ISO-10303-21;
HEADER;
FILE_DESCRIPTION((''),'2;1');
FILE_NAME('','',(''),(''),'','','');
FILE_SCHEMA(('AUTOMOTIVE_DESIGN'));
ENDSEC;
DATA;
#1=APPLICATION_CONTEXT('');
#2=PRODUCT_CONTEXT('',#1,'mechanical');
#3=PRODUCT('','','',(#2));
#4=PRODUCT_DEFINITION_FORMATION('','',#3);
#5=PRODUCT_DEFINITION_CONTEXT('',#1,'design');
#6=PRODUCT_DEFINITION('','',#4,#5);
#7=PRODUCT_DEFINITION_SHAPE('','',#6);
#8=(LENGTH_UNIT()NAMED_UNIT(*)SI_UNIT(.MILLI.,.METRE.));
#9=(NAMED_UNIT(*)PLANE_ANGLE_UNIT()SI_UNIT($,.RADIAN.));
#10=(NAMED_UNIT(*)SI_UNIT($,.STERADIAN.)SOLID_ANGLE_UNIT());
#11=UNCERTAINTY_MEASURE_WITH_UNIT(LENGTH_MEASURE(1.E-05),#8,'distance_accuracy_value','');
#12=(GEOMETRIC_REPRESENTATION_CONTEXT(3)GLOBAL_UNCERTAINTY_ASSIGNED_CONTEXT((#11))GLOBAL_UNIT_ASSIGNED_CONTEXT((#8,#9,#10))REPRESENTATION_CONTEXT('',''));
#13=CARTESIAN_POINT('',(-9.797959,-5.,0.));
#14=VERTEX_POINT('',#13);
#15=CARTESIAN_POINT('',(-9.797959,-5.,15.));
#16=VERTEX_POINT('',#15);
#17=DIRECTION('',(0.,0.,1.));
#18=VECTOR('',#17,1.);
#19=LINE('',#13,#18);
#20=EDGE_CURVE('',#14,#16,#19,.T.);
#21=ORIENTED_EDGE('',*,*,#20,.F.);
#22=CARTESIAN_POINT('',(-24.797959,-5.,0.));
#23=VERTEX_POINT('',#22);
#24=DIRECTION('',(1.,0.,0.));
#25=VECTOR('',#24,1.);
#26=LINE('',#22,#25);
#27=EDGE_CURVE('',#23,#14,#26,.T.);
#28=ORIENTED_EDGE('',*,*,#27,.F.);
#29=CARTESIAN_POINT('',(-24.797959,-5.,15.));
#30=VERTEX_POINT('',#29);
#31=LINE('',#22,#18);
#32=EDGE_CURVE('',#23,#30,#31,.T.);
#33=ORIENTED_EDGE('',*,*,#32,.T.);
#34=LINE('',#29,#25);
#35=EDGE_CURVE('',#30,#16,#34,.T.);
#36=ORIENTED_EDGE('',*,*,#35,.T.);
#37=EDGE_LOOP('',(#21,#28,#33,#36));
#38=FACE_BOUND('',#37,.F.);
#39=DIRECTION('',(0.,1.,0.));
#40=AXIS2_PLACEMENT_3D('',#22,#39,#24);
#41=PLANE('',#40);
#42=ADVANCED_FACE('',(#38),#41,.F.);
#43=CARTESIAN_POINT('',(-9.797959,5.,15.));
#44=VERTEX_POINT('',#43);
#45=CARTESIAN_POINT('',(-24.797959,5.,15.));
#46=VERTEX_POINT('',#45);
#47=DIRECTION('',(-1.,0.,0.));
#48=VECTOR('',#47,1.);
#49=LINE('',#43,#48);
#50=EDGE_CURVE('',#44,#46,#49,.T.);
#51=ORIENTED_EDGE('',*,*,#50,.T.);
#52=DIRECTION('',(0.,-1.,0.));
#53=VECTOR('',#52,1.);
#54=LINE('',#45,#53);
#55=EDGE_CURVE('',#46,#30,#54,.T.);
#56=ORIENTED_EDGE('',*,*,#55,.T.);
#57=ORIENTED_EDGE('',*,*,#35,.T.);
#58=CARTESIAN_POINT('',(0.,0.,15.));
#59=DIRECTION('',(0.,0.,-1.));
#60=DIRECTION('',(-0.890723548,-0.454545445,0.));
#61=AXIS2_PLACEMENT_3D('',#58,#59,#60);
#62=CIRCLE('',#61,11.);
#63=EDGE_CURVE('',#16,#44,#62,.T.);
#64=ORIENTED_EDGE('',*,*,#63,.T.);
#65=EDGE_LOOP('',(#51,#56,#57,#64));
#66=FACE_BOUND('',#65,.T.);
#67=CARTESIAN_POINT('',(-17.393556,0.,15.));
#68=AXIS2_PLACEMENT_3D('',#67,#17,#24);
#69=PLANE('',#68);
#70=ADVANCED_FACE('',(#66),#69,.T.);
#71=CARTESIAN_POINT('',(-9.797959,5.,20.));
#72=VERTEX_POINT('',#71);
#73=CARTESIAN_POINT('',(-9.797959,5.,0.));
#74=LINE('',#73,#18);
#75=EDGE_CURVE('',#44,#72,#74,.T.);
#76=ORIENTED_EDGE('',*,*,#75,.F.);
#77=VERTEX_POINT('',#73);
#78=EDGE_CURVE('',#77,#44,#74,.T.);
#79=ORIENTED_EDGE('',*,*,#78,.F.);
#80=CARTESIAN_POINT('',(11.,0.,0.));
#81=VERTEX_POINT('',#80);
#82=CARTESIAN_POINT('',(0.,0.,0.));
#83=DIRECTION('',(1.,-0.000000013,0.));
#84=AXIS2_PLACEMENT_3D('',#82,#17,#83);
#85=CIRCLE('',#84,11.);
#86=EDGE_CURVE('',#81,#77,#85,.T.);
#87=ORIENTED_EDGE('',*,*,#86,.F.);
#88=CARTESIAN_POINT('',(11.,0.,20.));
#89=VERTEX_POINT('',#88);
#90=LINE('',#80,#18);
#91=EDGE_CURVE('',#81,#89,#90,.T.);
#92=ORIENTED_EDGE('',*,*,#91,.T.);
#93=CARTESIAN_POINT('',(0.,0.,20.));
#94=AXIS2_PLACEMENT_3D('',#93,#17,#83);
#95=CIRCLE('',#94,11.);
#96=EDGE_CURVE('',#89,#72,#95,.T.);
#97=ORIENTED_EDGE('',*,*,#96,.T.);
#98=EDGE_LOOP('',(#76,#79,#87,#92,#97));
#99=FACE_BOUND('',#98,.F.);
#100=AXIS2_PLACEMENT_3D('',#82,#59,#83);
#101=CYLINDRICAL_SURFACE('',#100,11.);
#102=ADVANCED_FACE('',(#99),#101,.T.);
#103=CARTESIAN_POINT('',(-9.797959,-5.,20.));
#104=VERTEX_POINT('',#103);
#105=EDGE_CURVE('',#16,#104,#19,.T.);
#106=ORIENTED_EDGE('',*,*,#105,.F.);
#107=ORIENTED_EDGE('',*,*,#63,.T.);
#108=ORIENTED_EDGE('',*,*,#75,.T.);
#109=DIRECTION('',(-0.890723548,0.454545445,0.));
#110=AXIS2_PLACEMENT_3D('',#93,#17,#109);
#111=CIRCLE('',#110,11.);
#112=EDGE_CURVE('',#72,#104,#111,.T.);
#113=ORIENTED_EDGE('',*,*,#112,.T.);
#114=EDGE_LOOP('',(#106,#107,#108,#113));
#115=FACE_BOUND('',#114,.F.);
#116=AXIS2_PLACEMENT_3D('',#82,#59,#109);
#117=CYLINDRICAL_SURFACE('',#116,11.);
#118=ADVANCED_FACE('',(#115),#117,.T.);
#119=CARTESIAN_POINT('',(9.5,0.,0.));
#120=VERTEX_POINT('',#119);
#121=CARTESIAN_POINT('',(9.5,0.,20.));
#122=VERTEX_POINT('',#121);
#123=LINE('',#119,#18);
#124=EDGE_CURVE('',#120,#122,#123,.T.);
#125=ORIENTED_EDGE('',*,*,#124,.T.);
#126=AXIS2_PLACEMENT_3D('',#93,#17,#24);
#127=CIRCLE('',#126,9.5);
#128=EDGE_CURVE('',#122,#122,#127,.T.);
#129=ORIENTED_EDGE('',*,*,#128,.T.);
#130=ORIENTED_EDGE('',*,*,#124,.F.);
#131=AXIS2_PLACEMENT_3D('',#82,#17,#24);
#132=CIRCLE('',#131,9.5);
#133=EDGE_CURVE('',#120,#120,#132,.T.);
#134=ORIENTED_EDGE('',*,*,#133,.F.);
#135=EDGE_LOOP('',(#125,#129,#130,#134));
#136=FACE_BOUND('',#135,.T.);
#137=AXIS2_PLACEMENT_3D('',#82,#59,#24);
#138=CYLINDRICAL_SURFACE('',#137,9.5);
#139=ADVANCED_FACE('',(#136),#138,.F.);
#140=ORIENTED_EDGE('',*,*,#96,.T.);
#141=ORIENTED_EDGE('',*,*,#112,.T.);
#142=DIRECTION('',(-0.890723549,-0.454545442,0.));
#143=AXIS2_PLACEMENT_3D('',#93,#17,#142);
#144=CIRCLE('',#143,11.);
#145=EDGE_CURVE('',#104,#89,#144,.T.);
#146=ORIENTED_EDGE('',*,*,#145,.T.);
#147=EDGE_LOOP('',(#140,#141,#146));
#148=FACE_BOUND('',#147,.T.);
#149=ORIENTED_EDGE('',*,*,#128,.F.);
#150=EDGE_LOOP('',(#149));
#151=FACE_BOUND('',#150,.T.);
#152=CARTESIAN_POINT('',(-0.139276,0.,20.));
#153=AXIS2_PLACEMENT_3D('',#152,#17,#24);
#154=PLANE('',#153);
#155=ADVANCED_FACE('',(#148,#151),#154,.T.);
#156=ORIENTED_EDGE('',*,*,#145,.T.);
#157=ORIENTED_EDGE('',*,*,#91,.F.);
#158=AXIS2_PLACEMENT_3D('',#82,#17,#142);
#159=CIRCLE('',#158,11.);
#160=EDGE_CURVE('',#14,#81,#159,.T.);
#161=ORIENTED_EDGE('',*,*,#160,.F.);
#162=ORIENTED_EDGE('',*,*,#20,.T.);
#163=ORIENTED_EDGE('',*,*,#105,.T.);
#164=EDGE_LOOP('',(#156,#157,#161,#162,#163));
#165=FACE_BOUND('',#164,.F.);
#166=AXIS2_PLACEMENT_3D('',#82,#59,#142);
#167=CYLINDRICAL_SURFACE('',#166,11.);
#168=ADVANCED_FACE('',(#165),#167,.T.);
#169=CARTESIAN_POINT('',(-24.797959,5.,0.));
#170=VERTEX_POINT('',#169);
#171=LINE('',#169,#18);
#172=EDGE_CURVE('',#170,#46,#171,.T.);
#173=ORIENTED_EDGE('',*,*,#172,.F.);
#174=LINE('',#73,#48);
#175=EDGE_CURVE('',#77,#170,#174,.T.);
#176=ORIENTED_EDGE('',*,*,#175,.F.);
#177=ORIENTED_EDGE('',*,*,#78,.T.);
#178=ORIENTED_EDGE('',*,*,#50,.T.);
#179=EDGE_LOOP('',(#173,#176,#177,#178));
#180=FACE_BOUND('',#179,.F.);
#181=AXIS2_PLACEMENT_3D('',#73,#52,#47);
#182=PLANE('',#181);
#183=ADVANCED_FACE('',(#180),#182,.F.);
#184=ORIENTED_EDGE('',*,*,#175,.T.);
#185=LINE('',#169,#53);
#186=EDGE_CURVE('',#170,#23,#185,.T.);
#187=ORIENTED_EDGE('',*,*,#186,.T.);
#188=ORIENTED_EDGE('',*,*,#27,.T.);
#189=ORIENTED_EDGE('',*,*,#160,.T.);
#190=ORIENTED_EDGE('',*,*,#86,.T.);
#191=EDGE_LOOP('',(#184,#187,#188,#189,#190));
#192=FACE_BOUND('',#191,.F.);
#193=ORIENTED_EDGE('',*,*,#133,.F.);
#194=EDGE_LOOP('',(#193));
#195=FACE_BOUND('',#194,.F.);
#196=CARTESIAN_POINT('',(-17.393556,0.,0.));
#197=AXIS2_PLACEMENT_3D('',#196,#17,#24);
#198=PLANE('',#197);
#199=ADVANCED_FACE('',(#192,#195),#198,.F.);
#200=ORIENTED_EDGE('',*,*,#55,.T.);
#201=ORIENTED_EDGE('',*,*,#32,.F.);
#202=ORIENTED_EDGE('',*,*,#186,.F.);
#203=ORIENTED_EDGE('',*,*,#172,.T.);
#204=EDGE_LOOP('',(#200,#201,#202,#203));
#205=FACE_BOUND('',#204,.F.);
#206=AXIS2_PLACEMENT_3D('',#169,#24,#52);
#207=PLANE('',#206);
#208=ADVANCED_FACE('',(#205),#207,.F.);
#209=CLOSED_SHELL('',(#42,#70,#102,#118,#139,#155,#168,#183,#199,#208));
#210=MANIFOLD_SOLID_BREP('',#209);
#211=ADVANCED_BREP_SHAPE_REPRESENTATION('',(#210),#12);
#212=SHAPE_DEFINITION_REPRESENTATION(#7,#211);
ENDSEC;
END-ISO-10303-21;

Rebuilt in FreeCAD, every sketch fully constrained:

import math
import FreeCAD as App
import Part
import Sketcher
Q = App.Units.Quantity

doc = App.newDocument("Part")
body = doc.addObject("PartDesign::Body", "Body")

sketch1 = body.newObject("Sketcher::SketchObject", "Sketch")
sketch1.AttachmentSupport = (doc.getObject("XY_Plane"), [""])
sketch1.MapMode = "FlatFace"
sketch1.addGeometry(Part.ArcOfCircle(Part.Circle(App.Vector(0, 0, 0), App.Vector(0, 0, 1), 11), math.radians(0), math.radians(153)), False)
sketch1.addGeometry(Part.ArcOfCircle(Part.Circle(App.Vector(0, 0, 0), App.Vector(0, 0, 1), 11), math.radians(153), math.radians(207)), False)
sketch1.addGeometry(Part.ArcOfCircle(Part.Circle(App.Vector(0, 0, 0), App.Vector(0, 0, 1), 11), math.radians(-153), math.radians(0)), False)
sketch1.addGeometry(Part.Circle(App.Vector(0, 0, 0), App.Vector(0, 0, 1), 10), False)
sketch1.addConstraint(Sketcher.Constraint("Tangent", 0, 2, 1, 1))
sketch1.addConstraint(Sketcher.Constraint("Tangent", 1, 2, 2, 1))
sketch1.addConstraint(Sketcher.Constraint("Tangent", 2, 2, 0, 1))
sketch1.addConstraint(Sketcher.Constraint("Coincident", 0, 3, -1, 1))
sketch1.addConstraint(Sketcher.Constraint("Coincident", 3, 3, -1, 1))
sketch1.addConstraint(Sketcher.Constraint("PointOnObject", 2, 2, -1))
sketch1.addConstraint(Sketcher.Constraint("Vertical", 0, 2, 1, 2))
sketch1.addConstraint(Sketcher.Constraint("Diameter", 3, Q("19 mm")))
sketch1.addConstraint(Sketcher.Constraint("Radius", 0, Q("11 mm")))
sketch1.addConstraint(Sketcher.Constraint("DistanceY", -1, 1, 0, 2, Q("5 mm")))
pad1 = body.newObject("PartDesign::Pad", "Pad")
pad1.Profile = sketch1
pad1.Length = 20

sketch2 = body.newObject("Sketcher::SketchObject", "Sketch001")
sketch2.AttachmentSupport = (doc.getObject("XY_Plane"), [""])
sketch2.MapMode = "FlatFace"
sketch2.addGeometry(Part.LineSegment(App.Vector(-10, 5, 0), App.Vector(-25, 5, 0)), False)
sketch2.addGeometry(Part.LineSegment(App.Vector(-25, 5, 0), App.Vector(-25, -5, 0)), False)
sketch2.addGeometry(Part.LineSegment(App.Vector(-25, -5, 0), App.Vector(-10, -5, 0)), False)
sketch2.addGeometry(Part.ArcOfCircle(Part.Circle(App.Vector(0, 0, 0), App.Vector(0, 0, 1), 11), math.radians(153), math.radians(207)), False)
sketch2.addConstraint(Sketcher.Constraint("Coincident", 0, 2, 1, 1))
sketch2.addConstraint(Sketcher.Constraint("Coincident", 1, 2, 2, 1))
sketch2.addConstraint(Sketcher.Constraint("Coincident", 2, 2, 3, 2))
sketch2.addConstraint(Sketcher.Constraint("Coincident", 3, 1, 0, 1))
sketch2.addConstraint(Sketcher.Constraint("Horizontal", 0))
sketch2.addConstraint(Sketcher.Constraint("Vertical", 1))
sketch2.addConstraint(Sketcher.Constraint("Horizontal", 2))
sketch2.addConstraint(Sketcher.Constraint("Coincident", 3, 3, -1, 1))
sketch2.addConstraint(Sketcher.Constraint("Vertical", 2, 2, 3, 1))
sketch2.addConstraint(Sketcher.Constraint("Radius", 3, Q("11 mm")))
sketch2.addConstraint(Sketcher.Constraint("DistanceX", 0, 2, 0, 1, Q("15 mm")))
sketch2.addConstraint(Sketcher.Constraint("DistanceY", 1, 2, 1, 1, Q("10 mm")))
pad2 = body.newObject("PartDesign::Pad", "Pad001")
pad2.Profile = sketch2
pad2.Length = 15

doc.recompute()
